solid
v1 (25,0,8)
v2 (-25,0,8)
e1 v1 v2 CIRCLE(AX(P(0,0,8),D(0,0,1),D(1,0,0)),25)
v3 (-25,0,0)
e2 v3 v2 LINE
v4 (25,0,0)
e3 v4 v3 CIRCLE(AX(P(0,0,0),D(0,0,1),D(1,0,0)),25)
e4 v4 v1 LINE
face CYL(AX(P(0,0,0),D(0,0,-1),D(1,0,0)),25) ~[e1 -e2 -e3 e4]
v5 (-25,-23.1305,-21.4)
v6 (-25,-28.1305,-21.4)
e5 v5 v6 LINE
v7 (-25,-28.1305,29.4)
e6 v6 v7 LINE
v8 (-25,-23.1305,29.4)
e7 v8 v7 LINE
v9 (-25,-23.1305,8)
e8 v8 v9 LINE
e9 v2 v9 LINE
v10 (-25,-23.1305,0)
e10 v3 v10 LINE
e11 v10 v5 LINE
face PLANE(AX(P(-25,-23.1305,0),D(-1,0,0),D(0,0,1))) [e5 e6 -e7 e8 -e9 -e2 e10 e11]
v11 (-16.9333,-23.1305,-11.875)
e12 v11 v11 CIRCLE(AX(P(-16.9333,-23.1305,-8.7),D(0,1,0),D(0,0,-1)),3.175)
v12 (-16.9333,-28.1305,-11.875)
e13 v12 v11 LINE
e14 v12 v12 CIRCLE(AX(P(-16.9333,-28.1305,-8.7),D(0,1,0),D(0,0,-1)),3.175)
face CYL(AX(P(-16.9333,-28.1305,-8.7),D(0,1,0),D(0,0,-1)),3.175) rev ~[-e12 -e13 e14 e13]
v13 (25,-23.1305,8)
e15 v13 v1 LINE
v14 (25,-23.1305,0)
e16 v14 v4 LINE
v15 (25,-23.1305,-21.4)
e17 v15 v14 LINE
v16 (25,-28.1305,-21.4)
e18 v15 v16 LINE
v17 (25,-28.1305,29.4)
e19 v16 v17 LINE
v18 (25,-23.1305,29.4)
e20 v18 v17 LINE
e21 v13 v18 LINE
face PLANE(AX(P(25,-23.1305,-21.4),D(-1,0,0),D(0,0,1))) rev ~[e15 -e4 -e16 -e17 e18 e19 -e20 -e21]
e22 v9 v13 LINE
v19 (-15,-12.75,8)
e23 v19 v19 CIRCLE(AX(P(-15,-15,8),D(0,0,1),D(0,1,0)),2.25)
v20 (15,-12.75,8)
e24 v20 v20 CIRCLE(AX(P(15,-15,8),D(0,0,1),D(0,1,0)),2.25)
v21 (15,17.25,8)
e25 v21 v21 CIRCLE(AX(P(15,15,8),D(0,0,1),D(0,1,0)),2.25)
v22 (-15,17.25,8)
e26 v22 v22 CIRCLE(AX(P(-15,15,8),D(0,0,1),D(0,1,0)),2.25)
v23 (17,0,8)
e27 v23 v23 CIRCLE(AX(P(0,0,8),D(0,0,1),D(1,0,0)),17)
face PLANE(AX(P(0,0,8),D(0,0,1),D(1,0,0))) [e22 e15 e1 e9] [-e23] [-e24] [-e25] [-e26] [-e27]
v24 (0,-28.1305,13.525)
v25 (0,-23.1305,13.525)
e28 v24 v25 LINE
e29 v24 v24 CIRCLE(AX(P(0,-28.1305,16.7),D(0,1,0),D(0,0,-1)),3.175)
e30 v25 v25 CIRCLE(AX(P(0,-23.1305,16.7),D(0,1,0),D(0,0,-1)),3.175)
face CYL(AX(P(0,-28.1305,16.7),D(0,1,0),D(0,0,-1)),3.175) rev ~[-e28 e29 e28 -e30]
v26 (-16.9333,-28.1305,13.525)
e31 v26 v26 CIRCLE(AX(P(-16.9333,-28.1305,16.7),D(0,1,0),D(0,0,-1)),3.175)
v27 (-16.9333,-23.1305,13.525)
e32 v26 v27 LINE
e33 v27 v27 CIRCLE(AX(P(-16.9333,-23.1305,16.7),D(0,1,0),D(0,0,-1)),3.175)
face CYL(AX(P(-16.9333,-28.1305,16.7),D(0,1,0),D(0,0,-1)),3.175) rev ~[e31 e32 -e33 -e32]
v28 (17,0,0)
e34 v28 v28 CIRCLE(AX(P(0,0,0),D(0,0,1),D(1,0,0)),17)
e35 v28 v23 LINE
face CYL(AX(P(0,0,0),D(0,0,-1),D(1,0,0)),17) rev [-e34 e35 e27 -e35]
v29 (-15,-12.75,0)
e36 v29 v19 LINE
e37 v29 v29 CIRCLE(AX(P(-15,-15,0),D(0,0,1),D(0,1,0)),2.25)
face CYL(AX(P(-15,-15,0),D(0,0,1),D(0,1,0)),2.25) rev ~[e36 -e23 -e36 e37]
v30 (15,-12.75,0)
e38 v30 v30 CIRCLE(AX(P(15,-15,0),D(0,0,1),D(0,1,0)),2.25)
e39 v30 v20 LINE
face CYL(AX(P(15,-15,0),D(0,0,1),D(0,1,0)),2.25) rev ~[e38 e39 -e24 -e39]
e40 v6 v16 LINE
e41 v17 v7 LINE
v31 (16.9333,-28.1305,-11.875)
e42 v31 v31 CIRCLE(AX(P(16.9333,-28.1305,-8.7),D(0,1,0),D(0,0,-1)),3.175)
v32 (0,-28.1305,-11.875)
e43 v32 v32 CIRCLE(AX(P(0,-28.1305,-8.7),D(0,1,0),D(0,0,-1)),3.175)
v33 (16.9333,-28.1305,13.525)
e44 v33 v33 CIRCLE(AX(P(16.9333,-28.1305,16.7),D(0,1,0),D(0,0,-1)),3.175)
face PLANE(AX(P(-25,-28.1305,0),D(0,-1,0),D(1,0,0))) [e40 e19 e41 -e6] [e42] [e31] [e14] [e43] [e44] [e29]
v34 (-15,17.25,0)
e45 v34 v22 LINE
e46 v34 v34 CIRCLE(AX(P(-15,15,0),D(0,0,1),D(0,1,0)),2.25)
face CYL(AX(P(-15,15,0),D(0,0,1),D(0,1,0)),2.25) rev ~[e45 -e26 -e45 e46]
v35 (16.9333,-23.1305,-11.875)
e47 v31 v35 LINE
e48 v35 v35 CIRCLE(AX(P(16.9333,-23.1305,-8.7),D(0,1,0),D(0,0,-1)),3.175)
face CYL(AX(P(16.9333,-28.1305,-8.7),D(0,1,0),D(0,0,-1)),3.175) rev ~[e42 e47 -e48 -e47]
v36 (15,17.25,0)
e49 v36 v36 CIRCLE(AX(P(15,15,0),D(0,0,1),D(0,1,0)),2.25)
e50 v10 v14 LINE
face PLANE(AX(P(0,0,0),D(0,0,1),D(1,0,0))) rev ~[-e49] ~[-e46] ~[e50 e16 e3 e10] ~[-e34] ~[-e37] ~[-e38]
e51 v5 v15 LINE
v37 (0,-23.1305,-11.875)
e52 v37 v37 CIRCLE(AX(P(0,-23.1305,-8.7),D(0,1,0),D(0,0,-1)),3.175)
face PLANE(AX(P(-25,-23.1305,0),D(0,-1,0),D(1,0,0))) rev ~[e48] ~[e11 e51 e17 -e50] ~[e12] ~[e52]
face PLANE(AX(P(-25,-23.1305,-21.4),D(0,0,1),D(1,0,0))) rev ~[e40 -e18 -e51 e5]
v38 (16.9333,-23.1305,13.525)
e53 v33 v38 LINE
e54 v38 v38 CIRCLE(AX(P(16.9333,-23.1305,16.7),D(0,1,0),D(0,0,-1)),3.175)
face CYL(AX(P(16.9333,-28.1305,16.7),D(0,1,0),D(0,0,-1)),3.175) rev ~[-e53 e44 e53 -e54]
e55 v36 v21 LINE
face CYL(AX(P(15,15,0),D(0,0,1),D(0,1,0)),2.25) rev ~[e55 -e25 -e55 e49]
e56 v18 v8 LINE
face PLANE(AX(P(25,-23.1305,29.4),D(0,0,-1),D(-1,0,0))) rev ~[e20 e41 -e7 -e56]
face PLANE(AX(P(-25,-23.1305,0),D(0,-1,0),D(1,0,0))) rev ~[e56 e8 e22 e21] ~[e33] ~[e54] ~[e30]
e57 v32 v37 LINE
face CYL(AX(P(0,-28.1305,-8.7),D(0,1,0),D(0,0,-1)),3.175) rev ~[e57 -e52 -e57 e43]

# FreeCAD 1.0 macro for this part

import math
import FreeCAD as App
import Part
import Sketcher

V = App.Vector

doc = App.newDocument("Part")
body = doc.addObject("PartDesign::Body", "Body")

# Sketch on XY plane
sketch1 = body.newObject("Sketcher::SketchObject", "Sketch")
sketch1.AttachmentSupport = (doc.getObject("XY_Plane"), [""])
sketch1.MapMode = "FlatFace"
sketch1.addGeometry(Part.LineSegment(V(25, -23, 0), V(25, 0, 0)), False)
sketch1.addGeometry(Part.ArcOfCircle(Part.Circle(V(0, 0, 0), V(0, 0, 1), 25), math.radians(0), math.radians(180)), False)
sketch1.addGeometry(Part.LineSegment(V(-25, 0, 0), V(-25, -23, 0)), False)
sketch1.addGeometry(Part.LineSegment(V(-25, -23, 0), V(25, -23, 0)), False)
sketch1.addGeometry(Part.Circle(V(0, 0, 0), V(0, 0, 1), 17), False)
sketch1.addConstraint(Sketcher.Constraint("Tangent", 0, 2, 1, 1))
sketch1.addConstraint(Sketcher.Constraint("Tangent", 1, 2, 2, 1))
sketch1.addConstraint(Sketcher.Constraint("Coincident", 2, 2, 3, 1))
sketch1.addConstraint(Sketcher.Constraint("Coincident", 3, 2, 0, 1))
sketch1.addConstraint(Sketcher.Constraint("Vertical", 0))
sketch1.addConstraint(Sketcher.Constraint("Vertical", 2))
sketch1.addConstraint(Sketcher.Constraint("Horizontal", 3))
sketch1.addConstraint(Sketcher.Constraint("Coincident", 1, 3, -1, 1))
sketch1.addConstraint(Sketcher.Constraint("Coincident", 4, 3, -1, 1))
sketch1.addConstraint(Sketcher.Constraint("Diameter", 4, 34.0))
sketch1.addConstraint(Sketcher.Constraint("Radius", 1, 25.0))
sketch1.addConstraint(Sketcher.Constraint("DistanceY", 0, 1, 0, 2, 23.1305))
pad1 = body.newObject("PartDesign::Pad", "Pad")
pad1.Profile = sketch1
pad1.Length = 8

# Sketch on XZ plane
sketch2 = body.newObject("Sketcher::SketchObject", "Sketch001")
sketch2.AttachmentSupport = (doc.getObject("XZ_Plane"), [""])
sketch2.MapMode = "FlatFace"
sketch2.AttachmentOffset = App.Placement(V(0, 0, 23.1305), App.Rotation())
sketch2.addGeometry(Part.LineSegment(V(-25, 29, 0), V(-25, -21, 0)), False)
sketch2.addGeometry(Part.LineSegment(V(-25, -21, 0), V(25, -21, 0)), False)
sketch2.addGeometry(Part.LineSegment(V(25, -21, 0), V(25, 29, 0)), False)
sketch2.addGeometry(Part.LineSegment(V(25, 29, 0), V(-25, 29, 0)), False)
sketch2.addConstraint(Sketcher.Constraint("Coincident", 0, 2, 1, 1))
sketch2.addConstraint(Sketcher.Constraint("Coincident", 1, 2, 2, 1))
sketch2.addConstraint(Sketcher.Constraint("Coincident", 2, 2, 3, 1))
sketch2.addConstraint(Sketcher.Constraint("Coincident", 3, 2, 0, 1))
sketch2.addConstraint(Sketcher.Constraint("Vertical", 0))
sketch2.addConstraint(Sketcher.Constraint("Horizontal", 1))
sketch2.addConstraint(Sketcher.Constraint("Vertical", 2))
sketch2.addConstraint(Sketcher.Constraint("Horizontal", 3))
sketch2.addConstraint(Sketcher.Constraint("DistanceX", 1, 1, 1, 2, 50.0))
sketch2.addConstraint(Sketcher.Constraint("DistanceY", 0, 2, 0, 1, 50.8))
sketch2.addConstraint(Sketcher.Constraint("DistanceX", 0, 2, -1, 1, 25.0))
sketch2.addConstraint(Sketcher.Constraint("DistanceY", 0, 2, -1, 1, 21.4))
pad2 = body.newObject("PartDesign::Pad", "Pad001")
pad2.Profile = sketch2
pad2.Length = 5

# Sketch on XZ plane
sketch3 = body.newObject("Sketcher::SketchObject", "Sketch002")
sketch3.AttachmentSupport = (doc.getObject("XZ_Plane"), [""])
sketch3.MapMode = "FlatFace"
sketch3.AttachmentOffset = App.Placement(V(0, 0, 28.1305), App.Rotation())
sketch3.addGeometry(Part.Circle(V(-16.9, 16.7, 0), V(0, 0, 1), 3.2), False)
sketch3.addGeometry(Part.Circle(V(0, 16.7, 0), V(0, 0, 1), 3.2), False)
sketch3.addGeometry(Part.Circle(V(-16.9, -8.7, 0), V(0, 0, 1), 3.2), False)
sketch3.addGeometry(Part.Circle(V(0, -8.7, 0), V(0, 0, 1), 3.2), False)
sketch3.addGeometry(Part.Circle(V(16.9, 16.7, 0), V(0, 0, 1), 3.2), False)
sketch3.addGeometry(Part.Circle(V(16.9, -8.7, 0), V(0, 0, 1), 3.2), False)
sketch3.addConstraint(Sketcher.Constraint("Equal", 0, 1))
sketch3.addConstraint(Sketcher.Constraint("Equal", 1, 2))
sketch3.addConstraint(Sketcher.Constraint("Equal", 2, 3))
sketch3.addConstraint(Sketcher.Constraint("Equal", 3, 4))
sketch3.addConstraint(Sketcher.Constraint("Equal", 4, 5))
sketch3.addConstraint(Sketcher.Constraint("Symmetric", 0, 3, 4, 3, -2))
sketch3.addConstraint(Sketcher.Constraint("Symmetric", 2, 3, 5, 3, -2))
sketch3.addConstraint(Sketcher.Constraint("PointOnObject", 1, 3, -2))
sketch3.addConstraint(Sketcher.Constraint("PointOnObject", 3, 3, -2))
sketch3.addConstraint(Sketcher.Constraint("Horizontal", 0, 3, 1, 3))
sketch3.addConstraint(Sketcher.Constraint("Horizontal", 2, 3, 3, 3))
sketch3.addConstraint(Sketcher.Constraint("Vertical", 0, 3, 2, 3))
sketch3.addConstraint(Sketcher.Constraint("Diameter", 0, 6.35))
sketch3.addConstraint(Sketcher.Constraint("DistanceY", -1, 1, 0, 3, 16.7))
sketch3.addConstraint(Sketcher.Constraint("DistanceY", 2, 3, -1, 1, 8.7))
sketch3.addConstraint(Sketcher.Constraint("DistanceX", 0, 3, -1, 1, 16.9333))
doc.recompute()
hole = body.newObject("PartDesign::Hole", "Hole")
hole.Profile = sketch3
hole.ThreadType = "None"
hole.Diameter = 6.35
hole.DepthType = "ThroughAll"

# Sketch on XY plane
sketch4 = body.newObject("Sketcher::SketchObject", "Sketch003")
sketch4.AttachmentSupport = (doc.getObject("XY_Plane"), [""])
sketch4.MapMode = "FlatFace"
sketch4.addGeometry(Part.Circle(V(15, 15, 0), V(0, 0, 1), 2.2), False)
sketch4.addGeometry(Part.Circle(V(-15, 15, 0), V(0, 0, 1), 2.2), False)
sketch4.addGeometry(Part.Circle(V(15, -15, 0), V(0, 0, 1), 2.2), False)
sketch4.addGeometry(Part.Circle(V(-15, -15, 0), V(0, 0, 1), 2.2), False)
sketch4.addConstraint(Sketcher.Constraint("Equal", 0, 1))
sketch4.addConstraint(Sketcher.Constraint("Equal", 1, 2))
sketch4.addConstraint(Sketcher.Constraint("Equal", 2, 3))
sketch4.addConstraint(Sketcher.Constraint("Symmetric", 1, 3, 2, 3, -1, 1))
sketch4.addConstraint(Sketcher.Constraint("Symmetric", 0, 3, 3, 3, -1, 1))
sketch4.addConstraint(Sketcher.Constraint("Symmetric", 0, 3, 1, 3, -2))
sketch4.addConstraint(Sketcher.Constraint("Diameter", 0, 4.5))
sketch4.addConstraint(Sketcher.Constraint("DistanceX", -1, 1, 0, 3, 15.0))
sketch4.addConstraint(Sketcher.Constraint("DistanceY", -1, 1, 0, 3, 15.0))
doc.recompute()
hole2 = body.newObject("PartDesign::Hole", "Hole001")
hole2.Profile = sketch4
hole2.ThreadType = "None"
hole2.Diameter = 4.5
hole2.DepthType = "ThroughAll"
hole2.Reversed = True

doc.recompute()
